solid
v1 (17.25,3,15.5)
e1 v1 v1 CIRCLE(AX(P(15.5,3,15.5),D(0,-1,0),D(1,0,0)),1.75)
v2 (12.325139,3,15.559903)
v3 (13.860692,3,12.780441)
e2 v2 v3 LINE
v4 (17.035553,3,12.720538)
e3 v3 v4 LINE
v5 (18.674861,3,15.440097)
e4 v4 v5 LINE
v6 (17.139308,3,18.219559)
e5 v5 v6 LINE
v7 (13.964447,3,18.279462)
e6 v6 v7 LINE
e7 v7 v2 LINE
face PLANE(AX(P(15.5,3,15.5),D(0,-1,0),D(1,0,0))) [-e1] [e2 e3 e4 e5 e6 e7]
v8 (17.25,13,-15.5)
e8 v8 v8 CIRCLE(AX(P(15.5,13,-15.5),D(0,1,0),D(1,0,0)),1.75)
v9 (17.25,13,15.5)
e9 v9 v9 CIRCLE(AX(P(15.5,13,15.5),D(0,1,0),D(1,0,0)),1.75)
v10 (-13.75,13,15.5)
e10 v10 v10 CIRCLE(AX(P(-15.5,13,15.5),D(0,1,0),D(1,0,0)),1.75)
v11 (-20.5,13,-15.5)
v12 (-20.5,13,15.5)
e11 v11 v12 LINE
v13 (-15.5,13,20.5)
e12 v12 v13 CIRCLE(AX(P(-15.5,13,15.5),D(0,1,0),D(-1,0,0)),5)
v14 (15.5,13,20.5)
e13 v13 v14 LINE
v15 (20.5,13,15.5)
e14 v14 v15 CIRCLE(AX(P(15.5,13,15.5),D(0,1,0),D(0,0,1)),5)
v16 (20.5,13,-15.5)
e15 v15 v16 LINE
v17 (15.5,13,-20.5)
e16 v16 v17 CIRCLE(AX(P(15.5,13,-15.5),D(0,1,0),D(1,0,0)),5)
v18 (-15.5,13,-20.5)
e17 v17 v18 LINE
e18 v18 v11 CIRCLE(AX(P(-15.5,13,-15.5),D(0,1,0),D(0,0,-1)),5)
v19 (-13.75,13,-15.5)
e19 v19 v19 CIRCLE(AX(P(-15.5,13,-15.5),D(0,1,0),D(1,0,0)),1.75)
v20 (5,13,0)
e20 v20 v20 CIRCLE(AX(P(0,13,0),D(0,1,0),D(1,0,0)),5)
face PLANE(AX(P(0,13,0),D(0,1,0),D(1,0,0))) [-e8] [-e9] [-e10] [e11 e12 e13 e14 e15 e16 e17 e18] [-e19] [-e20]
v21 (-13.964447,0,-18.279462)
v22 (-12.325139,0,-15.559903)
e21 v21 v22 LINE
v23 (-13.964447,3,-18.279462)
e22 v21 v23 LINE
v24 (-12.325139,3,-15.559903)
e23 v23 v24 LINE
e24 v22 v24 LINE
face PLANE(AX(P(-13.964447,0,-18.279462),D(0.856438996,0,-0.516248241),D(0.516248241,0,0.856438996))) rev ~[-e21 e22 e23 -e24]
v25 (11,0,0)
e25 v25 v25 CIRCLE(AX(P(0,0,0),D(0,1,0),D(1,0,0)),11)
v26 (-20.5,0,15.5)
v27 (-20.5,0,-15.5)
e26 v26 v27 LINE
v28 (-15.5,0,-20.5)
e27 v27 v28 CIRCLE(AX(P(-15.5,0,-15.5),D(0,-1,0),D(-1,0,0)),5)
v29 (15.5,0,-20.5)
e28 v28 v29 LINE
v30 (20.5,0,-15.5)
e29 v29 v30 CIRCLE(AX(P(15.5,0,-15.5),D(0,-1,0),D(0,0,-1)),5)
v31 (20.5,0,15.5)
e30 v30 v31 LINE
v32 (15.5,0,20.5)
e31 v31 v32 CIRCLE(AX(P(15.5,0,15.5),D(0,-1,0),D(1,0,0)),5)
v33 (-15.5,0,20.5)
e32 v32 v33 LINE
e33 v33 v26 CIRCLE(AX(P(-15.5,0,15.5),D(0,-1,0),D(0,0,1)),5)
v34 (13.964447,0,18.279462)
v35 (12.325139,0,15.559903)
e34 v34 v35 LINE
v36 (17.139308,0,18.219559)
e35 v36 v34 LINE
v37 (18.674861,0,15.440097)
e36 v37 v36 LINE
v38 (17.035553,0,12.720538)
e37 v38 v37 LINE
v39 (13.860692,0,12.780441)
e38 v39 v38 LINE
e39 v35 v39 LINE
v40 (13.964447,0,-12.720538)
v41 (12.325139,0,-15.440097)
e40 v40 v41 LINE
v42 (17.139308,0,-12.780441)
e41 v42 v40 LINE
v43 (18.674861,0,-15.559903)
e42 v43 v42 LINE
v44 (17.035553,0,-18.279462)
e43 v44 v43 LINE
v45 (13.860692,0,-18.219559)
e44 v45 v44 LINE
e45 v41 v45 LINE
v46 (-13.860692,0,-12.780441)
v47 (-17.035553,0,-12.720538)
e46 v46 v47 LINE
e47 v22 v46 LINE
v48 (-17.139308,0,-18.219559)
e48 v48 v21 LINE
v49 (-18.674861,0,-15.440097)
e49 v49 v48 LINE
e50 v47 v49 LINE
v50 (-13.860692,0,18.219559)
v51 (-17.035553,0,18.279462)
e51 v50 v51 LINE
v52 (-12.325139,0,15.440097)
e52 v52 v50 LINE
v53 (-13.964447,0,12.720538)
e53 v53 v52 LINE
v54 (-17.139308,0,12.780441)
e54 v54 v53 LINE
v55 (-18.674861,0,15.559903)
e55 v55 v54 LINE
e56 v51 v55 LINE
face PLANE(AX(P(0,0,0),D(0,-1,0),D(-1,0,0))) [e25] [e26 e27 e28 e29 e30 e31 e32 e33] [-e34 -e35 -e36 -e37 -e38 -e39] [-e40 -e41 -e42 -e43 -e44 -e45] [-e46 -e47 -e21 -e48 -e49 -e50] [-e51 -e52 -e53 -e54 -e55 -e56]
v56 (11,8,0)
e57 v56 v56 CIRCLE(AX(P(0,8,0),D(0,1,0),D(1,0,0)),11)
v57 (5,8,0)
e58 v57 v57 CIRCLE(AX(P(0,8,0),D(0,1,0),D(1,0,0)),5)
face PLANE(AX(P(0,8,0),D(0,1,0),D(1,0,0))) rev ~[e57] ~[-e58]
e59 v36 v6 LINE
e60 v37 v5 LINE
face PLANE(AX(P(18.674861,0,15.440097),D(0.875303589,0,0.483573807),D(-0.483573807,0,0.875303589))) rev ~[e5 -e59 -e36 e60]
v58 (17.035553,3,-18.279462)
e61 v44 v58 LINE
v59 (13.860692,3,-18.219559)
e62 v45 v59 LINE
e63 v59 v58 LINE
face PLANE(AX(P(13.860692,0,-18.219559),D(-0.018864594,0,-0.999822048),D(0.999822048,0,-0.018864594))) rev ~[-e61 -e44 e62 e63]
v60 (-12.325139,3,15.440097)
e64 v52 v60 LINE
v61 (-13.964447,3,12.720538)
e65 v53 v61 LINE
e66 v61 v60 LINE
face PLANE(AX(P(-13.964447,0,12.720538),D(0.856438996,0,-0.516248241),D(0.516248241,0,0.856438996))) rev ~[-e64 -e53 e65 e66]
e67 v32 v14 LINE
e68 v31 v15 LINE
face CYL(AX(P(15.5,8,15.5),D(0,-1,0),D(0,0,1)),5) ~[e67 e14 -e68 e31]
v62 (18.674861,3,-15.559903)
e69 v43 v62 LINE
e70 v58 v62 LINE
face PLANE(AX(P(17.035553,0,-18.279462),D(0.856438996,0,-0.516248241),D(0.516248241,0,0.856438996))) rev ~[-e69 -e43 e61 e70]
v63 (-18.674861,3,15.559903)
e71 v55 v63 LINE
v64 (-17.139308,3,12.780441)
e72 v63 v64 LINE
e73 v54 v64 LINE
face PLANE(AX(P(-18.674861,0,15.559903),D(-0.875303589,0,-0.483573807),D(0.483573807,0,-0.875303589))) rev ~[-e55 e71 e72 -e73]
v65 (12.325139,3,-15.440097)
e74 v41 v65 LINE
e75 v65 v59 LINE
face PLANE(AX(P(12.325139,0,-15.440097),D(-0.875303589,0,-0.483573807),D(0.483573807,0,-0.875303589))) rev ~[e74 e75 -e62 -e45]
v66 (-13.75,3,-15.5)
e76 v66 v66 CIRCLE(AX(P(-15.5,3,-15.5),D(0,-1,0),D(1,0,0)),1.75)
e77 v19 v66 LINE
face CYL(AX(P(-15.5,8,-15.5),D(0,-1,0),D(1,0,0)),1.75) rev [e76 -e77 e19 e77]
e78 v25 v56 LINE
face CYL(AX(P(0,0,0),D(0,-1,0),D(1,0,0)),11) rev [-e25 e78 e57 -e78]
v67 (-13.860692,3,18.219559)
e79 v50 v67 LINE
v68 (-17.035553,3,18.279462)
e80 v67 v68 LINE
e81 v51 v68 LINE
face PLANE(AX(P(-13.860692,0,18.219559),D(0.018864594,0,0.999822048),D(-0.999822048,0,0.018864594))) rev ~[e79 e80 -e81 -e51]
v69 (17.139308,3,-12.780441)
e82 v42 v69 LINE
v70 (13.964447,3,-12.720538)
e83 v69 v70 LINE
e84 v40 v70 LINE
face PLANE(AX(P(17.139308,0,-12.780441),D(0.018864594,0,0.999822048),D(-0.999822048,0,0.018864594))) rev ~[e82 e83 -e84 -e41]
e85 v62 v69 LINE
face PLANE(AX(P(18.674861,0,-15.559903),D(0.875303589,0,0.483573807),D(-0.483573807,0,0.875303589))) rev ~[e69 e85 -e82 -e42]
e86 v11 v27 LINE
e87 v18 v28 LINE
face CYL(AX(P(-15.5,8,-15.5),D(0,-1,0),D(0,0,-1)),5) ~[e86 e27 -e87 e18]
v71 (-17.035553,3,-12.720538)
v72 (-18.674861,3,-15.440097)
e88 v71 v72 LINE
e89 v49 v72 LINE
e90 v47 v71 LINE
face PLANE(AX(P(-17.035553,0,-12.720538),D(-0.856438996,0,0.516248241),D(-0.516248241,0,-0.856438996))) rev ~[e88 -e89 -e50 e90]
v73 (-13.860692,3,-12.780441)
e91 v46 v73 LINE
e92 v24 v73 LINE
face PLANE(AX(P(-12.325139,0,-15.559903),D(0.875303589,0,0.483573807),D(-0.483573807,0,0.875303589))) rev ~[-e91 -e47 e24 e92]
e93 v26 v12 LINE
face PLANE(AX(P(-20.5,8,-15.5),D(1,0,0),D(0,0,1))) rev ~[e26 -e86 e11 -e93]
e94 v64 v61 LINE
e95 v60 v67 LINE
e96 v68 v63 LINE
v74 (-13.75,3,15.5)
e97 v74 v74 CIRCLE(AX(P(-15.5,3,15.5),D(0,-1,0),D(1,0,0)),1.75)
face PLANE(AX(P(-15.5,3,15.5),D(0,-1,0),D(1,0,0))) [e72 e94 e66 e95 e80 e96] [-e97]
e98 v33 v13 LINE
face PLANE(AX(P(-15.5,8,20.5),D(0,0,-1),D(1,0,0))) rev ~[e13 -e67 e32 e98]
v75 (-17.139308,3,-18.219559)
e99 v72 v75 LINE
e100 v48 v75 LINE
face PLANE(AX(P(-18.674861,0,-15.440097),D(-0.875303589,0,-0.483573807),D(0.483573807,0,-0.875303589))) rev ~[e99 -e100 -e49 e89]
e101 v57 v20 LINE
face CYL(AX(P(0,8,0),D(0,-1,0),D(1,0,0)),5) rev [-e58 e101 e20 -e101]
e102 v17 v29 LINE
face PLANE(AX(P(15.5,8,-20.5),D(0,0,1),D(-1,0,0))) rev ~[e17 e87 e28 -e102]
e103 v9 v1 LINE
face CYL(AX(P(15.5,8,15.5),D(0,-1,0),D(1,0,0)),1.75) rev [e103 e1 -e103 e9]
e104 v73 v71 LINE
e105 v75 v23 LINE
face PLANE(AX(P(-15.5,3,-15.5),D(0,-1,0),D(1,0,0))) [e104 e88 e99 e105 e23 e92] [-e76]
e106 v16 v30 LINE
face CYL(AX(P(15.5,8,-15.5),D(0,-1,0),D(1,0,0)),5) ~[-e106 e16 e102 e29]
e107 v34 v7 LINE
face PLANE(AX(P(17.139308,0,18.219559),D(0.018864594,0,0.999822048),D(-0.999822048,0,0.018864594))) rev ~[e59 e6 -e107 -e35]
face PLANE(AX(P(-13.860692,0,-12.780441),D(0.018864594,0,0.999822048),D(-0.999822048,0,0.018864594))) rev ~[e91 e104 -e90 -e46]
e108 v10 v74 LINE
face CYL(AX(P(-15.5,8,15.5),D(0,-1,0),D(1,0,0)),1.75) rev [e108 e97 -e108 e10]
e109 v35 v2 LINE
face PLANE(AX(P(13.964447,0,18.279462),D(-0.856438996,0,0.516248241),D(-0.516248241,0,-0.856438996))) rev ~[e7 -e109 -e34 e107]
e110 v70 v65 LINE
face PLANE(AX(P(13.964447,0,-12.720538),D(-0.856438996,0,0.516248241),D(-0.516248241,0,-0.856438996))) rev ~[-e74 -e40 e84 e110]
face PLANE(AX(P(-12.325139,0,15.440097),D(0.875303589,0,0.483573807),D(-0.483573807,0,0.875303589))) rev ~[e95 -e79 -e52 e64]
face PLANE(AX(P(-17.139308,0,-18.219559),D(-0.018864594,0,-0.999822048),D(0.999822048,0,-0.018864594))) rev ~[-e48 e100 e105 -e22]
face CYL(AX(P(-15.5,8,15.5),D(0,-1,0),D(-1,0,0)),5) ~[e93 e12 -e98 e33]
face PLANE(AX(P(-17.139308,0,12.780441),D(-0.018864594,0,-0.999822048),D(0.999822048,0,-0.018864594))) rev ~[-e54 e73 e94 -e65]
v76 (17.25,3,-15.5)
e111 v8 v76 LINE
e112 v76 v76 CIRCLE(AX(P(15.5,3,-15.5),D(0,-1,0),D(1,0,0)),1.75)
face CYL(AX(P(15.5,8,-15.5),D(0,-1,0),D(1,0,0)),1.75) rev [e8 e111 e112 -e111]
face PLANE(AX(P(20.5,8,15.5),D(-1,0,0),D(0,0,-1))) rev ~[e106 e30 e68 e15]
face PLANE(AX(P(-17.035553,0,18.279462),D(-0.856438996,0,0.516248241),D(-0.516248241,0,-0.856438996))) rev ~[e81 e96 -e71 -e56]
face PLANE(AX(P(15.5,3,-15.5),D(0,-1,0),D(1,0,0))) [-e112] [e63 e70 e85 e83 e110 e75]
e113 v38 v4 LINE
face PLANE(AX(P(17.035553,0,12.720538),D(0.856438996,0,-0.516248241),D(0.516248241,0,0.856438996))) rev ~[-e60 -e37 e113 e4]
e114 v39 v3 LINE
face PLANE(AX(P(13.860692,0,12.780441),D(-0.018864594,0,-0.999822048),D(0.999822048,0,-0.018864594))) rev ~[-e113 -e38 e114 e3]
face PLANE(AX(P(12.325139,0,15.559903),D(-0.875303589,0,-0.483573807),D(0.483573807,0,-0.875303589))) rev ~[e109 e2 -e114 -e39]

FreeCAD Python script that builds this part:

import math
import FreeCAD as App
import Part
import Sketcher

V = App.Vector


def add_polygon(sketch, points):
    """Adds a closed chain of lines whose ends are joined by coincident constraints."""
    first, n = sketch.GeometryCount, len(points)
    for a, b in zip(points, points[1:] + points[:1]):
        sketch.addGeometry(Part.LineSegment(App.Vector(*a, 0), App.Vector(*b, 0)), False)
    for i in range(n):
        sketch.addConstraint(Sketcher.Constraint("Coincident", first + i, 2, first + (i + 1) % n, 1))

doc = App.newDocument("Part")
body = doc.addObject("PartDesign::Body", "Body")

# Sketch on XZ plane
sketch1 = body.newObject("Sketcher::SketchObject", "Sketch")
sketch1.AttachmentSupport = (doc.getObject("XZ_Plane"), [""])
sketch1.MapMode = "FlatFace"
sketch1.addGeometry([
    Part.LineSegment(V(15.5, -20.5, 0), V(-15.5, -20.5, 0)),  # 0
    Part.ArcOfCircle(Part.Circle(V(-15.5, -15.5, 0), V(0, 0, 1), 5), math.radians(180), math.radians(270)),  # 1
    Part.LineSegment(V(-20.5, -15.5, 0), V(-20.5, 15.5, 0)),  # 2
    Part.ArcOfCircle(Part.Circle(V(-15.5, 15.5, 0), V(0, 0, 1), 5), math.radians(90), math.radians(180)),  # 3
    Part.LineSegment(V(-15.5, 20.5, 0), V(15.5, 20.5, 0)),  # 4
    Part.ArcOfCircle(Part.Circle(V(15.5, 15.5, 0), V(0, 0, 1), 5), math.radians(0), math.radians(90)),  # 5
    Part.LineSegment(V(20.5, 15.5, 0), V(20.5, -15.5, 0)),  # 6
    Part.ArcOfCircle(Part.Circle(V(15.5, -15.5, 0), V(0, 0, 1), 5), math.radians(-90), math.radians(0)),  # 7
    Part.Circle(V(15.5, 15.5, 0), V(0, 0, 1), 1.8),  # 8
    Part.Circle(V(-15.5, 15.5, 0), V(0, 0, 1), 1.8),  # 9
    Part.Circle(V(15.5, -15.5, 0), V(0, 0, 1), 1.8),  # 10
    Part.Circle(V(0, 0, 0), V(0, 0, 1), 11),  # 11
    Part.Circle(V(-15.5, -15.5, 0), V(0, 0, 1), 1.8),  # 12
], False)
sketch1.addConstraint([
    Sketcher.Constraint("Tangent", 0, 2, 1, 2),
    Sketcher.Constraint("Tangent", 1, 1, 2, 1),
    Sketcher.Constraint("Tangent", 2, 2, 3, 2),
    Sketcher.Constraint("Tangent", 3, 1, 4, 1),
    Sketcher.Constraint("Tangent", 4, 2, 5, 2),
    Sketcher.Constraint("Tangent", 5, 1, 6, 1),
    Sketcher.Constraint("Tangent", 6, 2, 7, 2),
    Sketcher.Constraint("Tangent", 7, 1, 0, 1),
    Sketcher.Constraint("Horizontal", 0),
    Sketcher.Constraint("Vertical", 2),
    Sketcher.Constraint("Horizontal", 4),
    Sketcher.Constraint("Vertical", 6),
    Sketcher.Constraint("Coincident", 11, 3, -1, 1),
    Sketcher.Constraint("Coincident", 8, 3, 5, 3),
    Sketcher.Constraint("Coincident", 9, 3, 3, 3),
    Sketcher.Constraint("Coincident", 10, 3, 7, 3),
    Sketcher.Constraint("Coincident", 12, 3, 1, 3),
    Sketcher.Constraint("Equal", 1, 3),
    Sketcher.Constraint("Equal", 3, 5),
    Sketcher.Constraint("Equal", 5, 7),
    Sketcher.Constraint("Equal", 8, 9),
    Sketcher.Constraint("Equal", 9, 10),
    Sketcher.Constraint("Equal", 10, 12),
    Sketcher.Constraint("Symmetric", 1, 3, 5, 3, -1, 1),
    Sketcher.Constraint("Equal", 4, 2),
    Sketcher.Constraint("Diameter", 11, 22.0),
    Sketcher.Constraint("Radius", 1, 5.0),
    Sketcher.Constraint("Diameter", 8, 3.5),
    Sketcher.Constraint("DistanceX", 0, 2, 0, 1, 31.0),
])
pad1 = body.newObject("PartDesign::Pad", "Pad")
pad1.Profile = sketch1
pad1.Length = 8
pad1.Reversed = True

# Sketch on XZ plane
sketch2 = body.newObject("Sketcher::SketchObject", "Sketch001")
sketch2.AttachmentSupport = (doc.getObject("XZ_Plane"), [""])
sketch2.MapMode = "FlatFace"
sketch2.AttachmentOffset = App.Placement(V(0, 0, -8), App.Rotation())
sketch2.addGeometry([
    Part.LineSegment(V(-20.5, -15.5, 0), V(-20.5, 15.5, 0)),  # 0
    Part.ArcOfCircle(Part.Circle(V(-15.5, 15.5, 0), V(0, 0, 1), 5), math.radians(90), math.radians(180)),  # 1
    Part.LineSegment(V(-15.5, 20.5, 0), V(15.5, 20.5, 0)),  # 2
    Part.ArcOfCircle(Part.Circle(V(15.5, 15.5, 0), V(0, 0, 1), 5), math.radians(0), math.radians(90)),  # 3
    Part.LineSegment(V(20.5, 15.5, 0), V(20.5, -15.5, 0)),  # 4
    Part.ArcOfCircle(Part.Circle(V(15.5, -15.5, 0), V(0, 0, 1), 5), math.radians(-90), math.radians(0)),  # 5
    Part.LineSegment(V(15.5, -20.5, 0), V(-15.5, -20.5, 0)),  # 6
    Part.ArcOfCircle(Part.Circle(V(-15.5, -15.5, 0), V(0, 0, 1), 5), math.radians(180), math.radians(270)),  # 7
    Part.Circle(V(-15.5, 15.5, 0), V(0, 0, 1), 1.8),  # 8
    Part.Circle(V(15.5, 15.5, 0), V(0, 0, 1), 1.8),  # 9
    Part.Circle(V(-15.5, -15.5, 0), V(0, 0, 1), 1.8),  # 10
    Part.Circle(V(0, 0, 0), V(0, 0, 1), 5),  # 11
    Part.Circle(V(15.5, -15.5, 0), V(0, 0, 1), 1.8),  # 12
], False)
sketch2.addConstraint([
    Sketcher.Constraint("Tangent", 0, 2, 1, 2),
    Sketcher.Constraint("Tangent", 1, 1, 2, 1),
    Sketcher.Constraint("Tangent", 2, 2, 3, 2),
    Sketcher.Constraint("Tangent", 3, 1, 4, 1),
    Sketcher.Constraint("Tangent", 4, 2, 5, 2),
    Sketcher.Constraint("Tangent", 5, 1, 6, 1),
    Sketcher.Constraint("Tangent", 6, 2, 7, 2),
    Sketcher.Constraint("Tangent", 7, 1, 0, 1),
    Sketcher.Constraint("Vertical", 0),
    Sketcher.Constraint("Horizontal", 2),
    Sketcher.Constraint("Vertical", 4),
    Sketcher.Constraint("Horizontal", 6),
    Sketcher.Constraint("Coincident", 11, 3, -1, 1),
    Sketcher.Constraint("Coincident", 8, 3, 1, 3),
    Sketcher.Constraint("Coincident", 9, 3, 3, 3),
    Sketcher.Constraint("Coincident", 10, 3, 7, 3),
    Sketcher.Constraint("Coincident", 12, 3, 5, 3),
    Sketcher.Constraint("Equal", 1, 3),
    Sketcher.Constraint("Equal", 3, 5),
    Sketcher.Constraint("Equal", 5, 7),
    Sketcher.Constraint("Equal", 8, 9),
    Sketcher.Constraint("Equal", 9, 10),
    Sketcher.Constraint("Equal", 7, 11),
    Sketcher.Constraint("Equal", 10, 12),
    Sketcher.Constraint("Symmetric", 1, 3, 5, 3, -1, 1),
    Sketcher.Constraint("Equal", 6, 0),
    Sketcher.Constraint("Diameter", 11, 10.0),
    Sketcher.Constraint("Diameter", 8, 3.5),
    Sketcher.Constraint("DistanceX", 2, 1, 2, 2, 31.0),
])
pad2 = body.newObject("PartDesign::Pad", "Pad001")
pad2.Profile = sketch2
pad2.Length = 5
pad2.Reversed = True

# Sketch on XZ plane
sketch3 = body.newObject("Sketcher::SketchObject", "Sketch002")
sketch3.AttachmentSupport = (doc.getObject("XZ_Plane"), [""])
sketch3.MapMode = "FlatFace"
add_polygon(sketch3, [(-13.9, 18.2), (-17, 18.3), (-18.7, 15.6), (-17.1, 12.8), (-14, 12.7), (-12.3, 15.4)])  # lines 0-5
add_polygon(sketch3, [(12.3, 15.6), (13.9, 12.8), (17, 12.7), (18.7, 15.4), (17.1, 18.2), (14, 18.3)])  # lines 6-11
add_polygon(sketch3, [(14, -12.7), (12.3, -15.4), (13.9, -18.2), (17, -18.3), (18.7, -15.6), (17.1, -12.8)])  # lines 12-17
add_polygon(sketch3, [(-13.9, -12.8), (-17, -12.7), (-18.7, -15.4), (-17.1, -18.2), (-14, -18.3), (-12.3, -15.6)])  # lines 18-23
sketch3.addConstraint([
    Sketcher.Constraint("Symmetric", 4, 2, 12, 2, -1, 1),
    Sketcher.Constraint("Symmetric", 5, 2, 13, 2, -1, 1),
    Sketcher.Constraint("Symmetric", 0, 2, 14, 2, -1, 1),
    Sketcher.Constraint("Symmetric", 1, 2, 15, 2, -1, 1),
    Sketcher.Constraint("Symmetric", 2, 2, 16, 2, -1, 1),
    Sketcher.Constraint("Symmetric", 3, 2, 17, 2, -1, 1),
    Sketcher.Constraint("Symmetric", 7, 2, 18, 2, -1, 1),
    Sketcher.Constraint("Symmetric", 8, 2, 19, 2, -1, 1),
    Sketcher.Constraint("Symmetric", 9, 2, 20, 2, -1, 1),
    Sketcher.Constraint("Symmetric", 10, 2, 21, 2, -1, 1),
    Sketcher.Constraint("Symmetric", 11, 2, 22, 2, -1, 1),
    Sketcher.Constraint("Symmetric", 6, 2, 23, 2, -1, 1),
    Sketcher.Constraint("Parallel", 0, 3),
    Sketcher.Constraint("Parallel", 1, 4),
    Sketcher.Constraint("Parallel", 2, 5),
    Sketcher.Constraint("Parallel", 5, 6),
    Sketcher.Constraint("Parallel", 3, 7),
    Sketcher.Constraint("Parallel", 4, 8),
    Sketcher.Constraint("Parallel", 6, 9),
    Sketcher.Constraint("Parallel", 7, 10),
    Sketcher.Constraint("Parallel", 8, 11),
    Sketcher.Constraint("Horizontal", 2, 2, 6, 2),
    Sketcher.Constraint("Horizontal", 3, 2, 7, 2),
    Sketcher.Constraint("Horizontal", 4, 2, 8, 2),
    Sketcher.Constraint("Horizontal", 5, 2, 9, 2),
    Sketcher.Constraint("Horizontal", 0, 2, 10, 2),
    Sketcher.Constraint("Vertical", 11, 2, 12, 2),
    Sketcher.Constraint("Vertical", 6, 2, 13, 2),
    Sketcher.Constraint("Equal", 0, 1),
    Sketcher.Constraint("Equal", 1, 2),
    Sketcher.Constraint("DistanceX", 2, 2, 6, 2, 31.0),
    Sketcher.Constraint("DistanceY", 12, 2, 11, 2, 31.0),
    Sketcher.Constraint("DistanceX", 1, 2, -1, 1, 18.674861),
    Sketcher.Constraint("DistanceX", 2, 2, -1, 1, 17.139308),
    Sketcher.Constraint("DistanceY", -1, 1, 2, 2, 12.780441),
    Sketcher.Constraint("DistanceX", 1, 2, 0, 2, 1.639308),
])
pocket1 = body.newObject("PartDesign::Pocket", "Pocket")
pocket1.Profile = sketch3
pocket1.Length = 3

doc.recompute()
